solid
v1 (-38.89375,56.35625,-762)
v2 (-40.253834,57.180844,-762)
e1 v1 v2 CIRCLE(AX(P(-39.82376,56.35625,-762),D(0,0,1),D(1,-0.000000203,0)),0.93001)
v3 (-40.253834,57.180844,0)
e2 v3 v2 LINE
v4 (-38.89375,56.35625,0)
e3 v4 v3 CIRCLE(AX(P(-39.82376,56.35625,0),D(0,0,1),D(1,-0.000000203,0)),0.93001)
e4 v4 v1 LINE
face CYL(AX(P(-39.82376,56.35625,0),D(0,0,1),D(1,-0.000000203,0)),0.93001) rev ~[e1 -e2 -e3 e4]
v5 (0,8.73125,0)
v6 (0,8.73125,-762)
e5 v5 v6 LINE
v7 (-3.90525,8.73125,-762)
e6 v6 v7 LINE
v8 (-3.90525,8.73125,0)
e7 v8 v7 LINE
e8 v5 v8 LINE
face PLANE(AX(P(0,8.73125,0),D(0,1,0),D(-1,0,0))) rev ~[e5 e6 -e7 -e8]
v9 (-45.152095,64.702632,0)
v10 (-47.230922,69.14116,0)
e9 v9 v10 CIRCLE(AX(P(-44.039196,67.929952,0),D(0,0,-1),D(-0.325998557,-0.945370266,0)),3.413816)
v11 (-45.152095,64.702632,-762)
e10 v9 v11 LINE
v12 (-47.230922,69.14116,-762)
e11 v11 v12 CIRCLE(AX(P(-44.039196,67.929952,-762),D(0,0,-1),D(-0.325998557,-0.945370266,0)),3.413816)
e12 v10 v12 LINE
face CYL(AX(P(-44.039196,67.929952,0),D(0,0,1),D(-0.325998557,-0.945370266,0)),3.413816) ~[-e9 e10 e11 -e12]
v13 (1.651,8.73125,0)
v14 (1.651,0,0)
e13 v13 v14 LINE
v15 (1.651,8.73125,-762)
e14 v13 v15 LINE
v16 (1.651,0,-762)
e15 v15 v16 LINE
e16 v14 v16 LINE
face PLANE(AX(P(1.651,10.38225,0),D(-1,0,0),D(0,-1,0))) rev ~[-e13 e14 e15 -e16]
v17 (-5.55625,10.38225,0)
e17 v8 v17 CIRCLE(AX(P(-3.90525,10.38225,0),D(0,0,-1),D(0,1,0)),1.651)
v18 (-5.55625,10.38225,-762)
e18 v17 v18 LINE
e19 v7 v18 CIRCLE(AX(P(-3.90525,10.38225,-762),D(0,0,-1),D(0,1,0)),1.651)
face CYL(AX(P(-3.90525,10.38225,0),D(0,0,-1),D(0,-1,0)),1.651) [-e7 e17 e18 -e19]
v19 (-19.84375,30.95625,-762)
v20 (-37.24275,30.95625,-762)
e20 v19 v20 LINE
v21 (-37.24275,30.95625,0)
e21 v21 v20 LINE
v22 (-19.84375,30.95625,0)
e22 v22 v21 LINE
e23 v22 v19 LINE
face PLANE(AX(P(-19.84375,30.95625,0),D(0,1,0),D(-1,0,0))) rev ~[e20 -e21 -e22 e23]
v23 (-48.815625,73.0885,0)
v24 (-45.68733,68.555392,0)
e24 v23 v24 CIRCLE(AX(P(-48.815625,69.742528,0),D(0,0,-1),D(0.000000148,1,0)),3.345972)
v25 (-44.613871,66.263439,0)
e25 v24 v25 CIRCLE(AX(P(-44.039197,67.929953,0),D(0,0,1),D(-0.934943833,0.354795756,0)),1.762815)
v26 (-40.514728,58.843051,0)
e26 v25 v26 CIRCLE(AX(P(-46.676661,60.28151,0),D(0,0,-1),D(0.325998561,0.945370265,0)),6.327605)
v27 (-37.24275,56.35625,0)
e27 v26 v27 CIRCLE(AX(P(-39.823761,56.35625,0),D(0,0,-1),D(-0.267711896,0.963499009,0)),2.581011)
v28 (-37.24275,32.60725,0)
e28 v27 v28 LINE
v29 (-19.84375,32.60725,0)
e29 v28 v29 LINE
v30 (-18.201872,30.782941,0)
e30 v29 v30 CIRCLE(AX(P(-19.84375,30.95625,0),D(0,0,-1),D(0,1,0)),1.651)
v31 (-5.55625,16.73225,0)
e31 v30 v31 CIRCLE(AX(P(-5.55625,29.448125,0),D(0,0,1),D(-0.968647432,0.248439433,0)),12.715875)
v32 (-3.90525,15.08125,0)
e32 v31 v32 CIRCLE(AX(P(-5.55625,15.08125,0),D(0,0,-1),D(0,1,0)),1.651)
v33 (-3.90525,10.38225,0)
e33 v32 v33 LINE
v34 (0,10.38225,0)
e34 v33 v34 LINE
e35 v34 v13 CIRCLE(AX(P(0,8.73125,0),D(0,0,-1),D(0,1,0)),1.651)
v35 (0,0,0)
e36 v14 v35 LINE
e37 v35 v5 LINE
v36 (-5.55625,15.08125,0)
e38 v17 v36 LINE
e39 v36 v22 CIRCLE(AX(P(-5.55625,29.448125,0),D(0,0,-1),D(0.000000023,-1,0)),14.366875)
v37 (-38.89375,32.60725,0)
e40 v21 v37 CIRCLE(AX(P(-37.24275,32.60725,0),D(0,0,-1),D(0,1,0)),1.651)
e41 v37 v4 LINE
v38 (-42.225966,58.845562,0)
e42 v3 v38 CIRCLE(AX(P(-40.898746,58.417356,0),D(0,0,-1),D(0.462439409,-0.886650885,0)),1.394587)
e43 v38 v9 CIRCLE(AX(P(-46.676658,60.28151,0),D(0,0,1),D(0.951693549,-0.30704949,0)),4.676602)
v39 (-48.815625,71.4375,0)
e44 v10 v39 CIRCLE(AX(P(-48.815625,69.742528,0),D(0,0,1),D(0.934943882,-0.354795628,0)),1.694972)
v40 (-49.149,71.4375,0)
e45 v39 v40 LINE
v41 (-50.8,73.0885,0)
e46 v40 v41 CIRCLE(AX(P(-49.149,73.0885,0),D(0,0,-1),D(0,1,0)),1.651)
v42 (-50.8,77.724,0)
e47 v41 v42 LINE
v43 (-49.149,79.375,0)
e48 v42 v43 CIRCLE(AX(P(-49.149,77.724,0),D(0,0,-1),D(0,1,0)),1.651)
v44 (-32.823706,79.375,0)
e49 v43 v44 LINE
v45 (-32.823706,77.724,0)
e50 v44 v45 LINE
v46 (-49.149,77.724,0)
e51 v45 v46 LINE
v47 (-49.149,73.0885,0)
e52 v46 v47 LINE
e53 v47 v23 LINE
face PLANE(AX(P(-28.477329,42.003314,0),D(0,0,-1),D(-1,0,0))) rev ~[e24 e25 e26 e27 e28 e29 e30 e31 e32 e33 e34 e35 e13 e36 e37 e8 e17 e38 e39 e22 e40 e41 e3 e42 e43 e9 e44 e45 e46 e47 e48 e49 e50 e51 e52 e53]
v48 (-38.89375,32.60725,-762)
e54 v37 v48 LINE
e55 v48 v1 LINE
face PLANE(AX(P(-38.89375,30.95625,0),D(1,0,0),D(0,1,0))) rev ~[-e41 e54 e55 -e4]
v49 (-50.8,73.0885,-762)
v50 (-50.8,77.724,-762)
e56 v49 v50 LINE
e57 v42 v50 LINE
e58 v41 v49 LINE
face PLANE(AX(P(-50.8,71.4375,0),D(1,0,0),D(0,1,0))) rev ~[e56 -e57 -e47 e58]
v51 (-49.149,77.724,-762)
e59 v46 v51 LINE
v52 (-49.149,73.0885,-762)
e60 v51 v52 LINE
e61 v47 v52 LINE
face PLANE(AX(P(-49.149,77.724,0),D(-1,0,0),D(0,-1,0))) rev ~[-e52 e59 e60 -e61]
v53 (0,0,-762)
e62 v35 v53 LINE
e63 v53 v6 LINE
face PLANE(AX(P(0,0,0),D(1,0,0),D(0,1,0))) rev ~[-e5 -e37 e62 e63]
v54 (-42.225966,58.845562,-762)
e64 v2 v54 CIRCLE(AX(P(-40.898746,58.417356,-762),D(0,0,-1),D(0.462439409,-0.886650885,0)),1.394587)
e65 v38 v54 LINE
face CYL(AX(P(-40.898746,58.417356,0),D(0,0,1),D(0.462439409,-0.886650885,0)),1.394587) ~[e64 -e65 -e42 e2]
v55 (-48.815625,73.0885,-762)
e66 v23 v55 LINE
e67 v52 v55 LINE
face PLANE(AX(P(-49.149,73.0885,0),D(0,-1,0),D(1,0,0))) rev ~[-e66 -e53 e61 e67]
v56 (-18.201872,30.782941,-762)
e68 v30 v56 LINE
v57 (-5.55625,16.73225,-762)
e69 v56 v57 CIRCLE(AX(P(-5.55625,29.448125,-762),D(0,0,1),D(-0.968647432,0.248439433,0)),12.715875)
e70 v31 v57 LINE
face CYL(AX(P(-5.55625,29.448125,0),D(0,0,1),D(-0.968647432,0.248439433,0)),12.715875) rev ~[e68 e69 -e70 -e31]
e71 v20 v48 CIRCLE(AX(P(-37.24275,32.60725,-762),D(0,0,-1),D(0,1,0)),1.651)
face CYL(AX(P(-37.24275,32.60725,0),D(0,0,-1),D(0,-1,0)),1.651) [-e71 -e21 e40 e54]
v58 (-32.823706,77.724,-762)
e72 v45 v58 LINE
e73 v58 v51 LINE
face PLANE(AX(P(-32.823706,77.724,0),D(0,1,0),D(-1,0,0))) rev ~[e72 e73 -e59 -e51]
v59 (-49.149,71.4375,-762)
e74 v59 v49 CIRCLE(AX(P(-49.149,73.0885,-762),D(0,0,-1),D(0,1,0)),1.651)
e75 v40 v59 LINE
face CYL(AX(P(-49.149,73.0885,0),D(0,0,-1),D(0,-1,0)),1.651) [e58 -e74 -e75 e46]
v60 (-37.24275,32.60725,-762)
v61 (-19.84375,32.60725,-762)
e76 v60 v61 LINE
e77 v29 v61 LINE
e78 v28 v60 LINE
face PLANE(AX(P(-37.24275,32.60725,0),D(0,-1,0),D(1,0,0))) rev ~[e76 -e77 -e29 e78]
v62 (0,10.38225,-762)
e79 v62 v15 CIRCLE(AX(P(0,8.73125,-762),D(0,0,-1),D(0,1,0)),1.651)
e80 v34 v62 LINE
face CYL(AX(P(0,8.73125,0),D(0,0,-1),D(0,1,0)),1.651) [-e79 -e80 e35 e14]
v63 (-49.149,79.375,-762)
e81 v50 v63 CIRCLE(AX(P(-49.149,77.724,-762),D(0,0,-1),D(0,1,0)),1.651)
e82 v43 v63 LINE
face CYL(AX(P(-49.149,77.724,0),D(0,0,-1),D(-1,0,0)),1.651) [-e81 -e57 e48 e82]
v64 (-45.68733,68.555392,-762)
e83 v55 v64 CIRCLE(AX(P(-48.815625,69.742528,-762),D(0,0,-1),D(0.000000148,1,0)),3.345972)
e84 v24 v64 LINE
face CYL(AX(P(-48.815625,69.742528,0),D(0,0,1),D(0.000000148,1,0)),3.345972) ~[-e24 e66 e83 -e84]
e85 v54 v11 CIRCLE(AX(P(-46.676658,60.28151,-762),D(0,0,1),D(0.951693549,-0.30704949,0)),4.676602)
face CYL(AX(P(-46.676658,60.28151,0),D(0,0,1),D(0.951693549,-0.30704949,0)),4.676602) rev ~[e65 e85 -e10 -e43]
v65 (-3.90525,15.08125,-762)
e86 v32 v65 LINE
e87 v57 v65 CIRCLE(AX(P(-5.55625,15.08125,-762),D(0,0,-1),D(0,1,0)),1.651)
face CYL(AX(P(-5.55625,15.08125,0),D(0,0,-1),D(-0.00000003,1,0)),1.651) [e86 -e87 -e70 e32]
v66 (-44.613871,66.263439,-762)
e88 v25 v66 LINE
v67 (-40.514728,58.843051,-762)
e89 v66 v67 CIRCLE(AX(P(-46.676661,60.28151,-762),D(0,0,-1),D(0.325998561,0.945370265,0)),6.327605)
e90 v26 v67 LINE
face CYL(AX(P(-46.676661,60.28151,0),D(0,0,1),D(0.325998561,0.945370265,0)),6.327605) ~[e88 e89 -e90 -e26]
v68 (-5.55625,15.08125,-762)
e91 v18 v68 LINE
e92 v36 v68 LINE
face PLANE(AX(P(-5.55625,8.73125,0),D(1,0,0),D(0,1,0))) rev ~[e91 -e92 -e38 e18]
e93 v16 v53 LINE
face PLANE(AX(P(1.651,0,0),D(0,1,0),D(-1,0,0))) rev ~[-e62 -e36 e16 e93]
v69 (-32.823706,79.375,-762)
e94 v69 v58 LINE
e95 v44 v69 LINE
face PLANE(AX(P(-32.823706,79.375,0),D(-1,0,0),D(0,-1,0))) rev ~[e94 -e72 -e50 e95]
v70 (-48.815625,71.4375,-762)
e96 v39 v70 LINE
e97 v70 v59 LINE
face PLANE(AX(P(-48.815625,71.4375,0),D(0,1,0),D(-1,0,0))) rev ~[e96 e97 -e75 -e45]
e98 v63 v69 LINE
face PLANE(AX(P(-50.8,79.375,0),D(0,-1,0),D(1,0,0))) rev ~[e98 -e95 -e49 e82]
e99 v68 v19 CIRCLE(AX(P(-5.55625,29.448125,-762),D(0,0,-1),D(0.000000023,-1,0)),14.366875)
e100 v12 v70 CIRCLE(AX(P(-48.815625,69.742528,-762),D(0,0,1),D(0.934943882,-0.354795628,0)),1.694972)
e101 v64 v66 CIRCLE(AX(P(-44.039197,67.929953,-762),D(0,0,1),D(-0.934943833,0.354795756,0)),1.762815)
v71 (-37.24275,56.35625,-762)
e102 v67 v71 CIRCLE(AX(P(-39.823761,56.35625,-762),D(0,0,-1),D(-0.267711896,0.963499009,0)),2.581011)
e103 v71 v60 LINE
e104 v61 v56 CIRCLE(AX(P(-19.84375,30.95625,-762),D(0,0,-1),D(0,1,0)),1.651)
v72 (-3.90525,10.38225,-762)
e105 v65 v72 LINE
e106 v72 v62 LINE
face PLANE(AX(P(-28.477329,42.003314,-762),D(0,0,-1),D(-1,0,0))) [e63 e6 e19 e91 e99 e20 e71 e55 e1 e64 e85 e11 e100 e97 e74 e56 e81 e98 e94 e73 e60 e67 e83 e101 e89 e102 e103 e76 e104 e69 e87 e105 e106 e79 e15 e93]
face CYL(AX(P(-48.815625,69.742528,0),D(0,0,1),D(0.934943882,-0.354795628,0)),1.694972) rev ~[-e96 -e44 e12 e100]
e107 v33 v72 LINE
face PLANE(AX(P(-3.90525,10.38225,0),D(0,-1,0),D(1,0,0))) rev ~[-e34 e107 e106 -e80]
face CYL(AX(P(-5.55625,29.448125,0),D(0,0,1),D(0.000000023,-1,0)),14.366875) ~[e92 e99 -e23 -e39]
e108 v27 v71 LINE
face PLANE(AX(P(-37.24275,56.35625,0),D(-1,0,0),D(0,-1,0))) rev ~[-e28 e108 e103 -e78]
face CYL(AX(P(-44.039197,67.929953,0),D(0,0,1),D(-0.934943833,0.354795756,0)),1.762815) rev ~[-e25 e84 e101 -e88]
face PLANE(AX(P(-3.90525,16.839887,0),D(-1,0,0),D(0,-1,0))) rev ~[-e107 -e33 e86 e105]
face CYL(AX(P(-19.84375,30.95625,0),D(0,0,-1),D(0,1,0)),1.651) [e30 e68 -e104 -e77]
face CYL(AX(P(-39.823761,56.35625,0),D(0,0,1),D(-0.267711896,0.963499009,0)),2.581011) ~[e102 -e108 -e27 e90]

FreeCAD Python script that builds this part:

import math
import FreeCAD as App
import Part
import Sketcher

V = App.Vector
Q = App.Units.Quantity


def edges_at(feature, points):
    """Names of the edges that pass closest to the given points."""
    edges = feature.Shape.Edges
    near = lambda p: min(range(len(edges)), key=lambda i: edges[i].distToShape(Part.Vertex(*p))[0])
    return sorted({f"Edge{near(p) + 1}" for p in points})

doc = App.newDocument("Part")
body = doc.addObject("PartDesign::Body", "Body")

# Sketch on XY plane
sketch1 = body.newObject("Sketcher::SketchObject", "Sketch")
sketch1.AttachmentSupport = (doc.getObject("XY_Plane"), [""])
sketch1.MapMode = "FlatFace"
sketch1.addGeometry([
    Part.LineSegment(V(0, 8.73, 0), V(0, 0, 0)),  # 0
    Part.LineSegment(V(0, 0, 0), V(1.65, 0, 0)),  # 1
    Part.LineSegment(V(1.65, 0, 0), V(1.65, 10.38, 0)),  # 2
    Part.LineSegment(V(1.65, 10.38, 0), V(-3.91, 10.38, 0)),  # 3
    Part.LineSegment(V(-3.91, 10.38, 0), V(-3.91, 16.84, 0)),  # 4
    Part.ArcOfCircle(Part.Circle(V(-5.56, 29.45, 0), V(0, 0, 1), 12.72), math.radians(166), math.radians(277)),  # 5
    Part.LineSegment(V(-17.87, 32.61, 0), V(-37.24, 32.61, 0)),  # 6
    Part.LineSegment(V(-37.24, 32.61, 0), V(-37.24, 56.36, 0)),  # 7
    Part.ArcOfCircle(Part.Circle(V(-39.82, 56.36, 0), V(0, 0, 1), 2.58), math.radians(0), math.radians(106)),  # 8
    Part.ArcOfCircle(Part.Circle(V(-46.68, 60.28, 0), V(0, 0, 1), 6.33), math.radians(-13), math.radians(71)),  # 9
    Part.ArcOfCircle(Part.Circle(V(-44.04, 67.93, 0), V(0, 0, 1), 1.76), math.radians(159), math.radians(251)),  # 10
    Part.ArcOfCircle(Part.Circle(V(-48.82, 69.74, 0), V(0, 0, 1), 3.35), math.radians(-21), math.radians(90)),  # 11
    Part.LineSegment(V(-48.82, 73.09, 0), V(-49.15, 73.09, 0)),  # 12
    Part.LineSegment(V(-49.15, 73.09, 0), V(-49.15, 77.72, 0)),  # 13
    Part.LineSegment(V(-49.15, 77.72, 0), V(-32.82, 77.72, 0)),  # 14
    Part.LineSegment(V(-32.82, 77.72, 0), V(-32.82, 79.38, 0)),  # 15
    Part.LineSegment(V(-32.82, 79.38, 0), V(-50.8, 79.38, 0)),  # 16
    Part.LineSegment(V(-50.8, 79.38, 0), V(-50.8, 71.44, 0)),  # 17
    Part.LineSegment(V(-50.8, 71.44, 0), V(-48.82, 71.44, 0)),  # 18
    Part.ArcOfCircle(Part.Circle(V(-48.82, 69.74, 0), V(0, 0, 1), 1.69), math.radians(-21), math.radians(90)),  # 19
    Part.ArcOfCircle(Part.Circle(V(-44.04, 67.93, 0), V(0, 0, 1), 3.41), math.radians(159), math.radians(251)),  # 20
    Part.ArcOfCircle(Part.Circle(V(-46.68, 60.28, 0), V(0, 0, 1), 4.68), math.radians(-18), math.radians(71)),  # 21
    Part.ArcOfCircle(Part.Circle(V(-40.9, 58.42, 0), V(0, 0, 1), 1.39), math.radians(162), math.radians(298)),  # 22
    Part.ArcOfCircle(Part.Circle(V(-39.82, 56.36, 0), V(0, 0, 1), 0.93), math.radians(0), math.radians(118)),  # 23
    Part.LineSegment(V(-38.89, 56.36, 0), V(-38.89, 30.96, 0)),  # 24
    Part.LineSegment(V(-38.89, 30.96, 0), V(-19.84, 30.96, 0)),  # 25
    Part.ArcOfCircle(Part.Circle(V(-5.56, 29.45, 0), V(0, 0, 1), 14.37), math.radians(174), math.radians(270)),  # 26
    Part.LineSegment(V(-5.56, 15.08, 0), V(-5.56, 8.73, 0)),  # 27
    Part.LineSegment(V(-5.56, 8.73, 0), V(0, 8.73, 0)),  # 28
], False)
sketch1.addConstraint([
    Sketcher.Constraint("Coincident", 0, 2, 1, 1),
    Sketcher.Constraint("Coincident", 1, 2, 2, 1),
    Sketcher.Constraint("Coincident", 2, 2, 3, 1),
    Sketcher.Constraint("Coincident", 3, 2, 4, 1),
    Sketcher.Constraint("Coincident", 4, 2, 5, 2),
    Sketcher.Constraint("Coincident", 5, 1, 6, 1),
    Sketcher.Constraint("Coincident", 6, 2, 7, 1),
    Sketcher.Constraint("Tangent", 7, 2, 8, 1),
    Sketcher.Constraint("Coincident", 8, 2, 9, 1),
    Sketcher.Constraint("Tangent", 9, 2, 10, 2),
    Sketcher.Constraint("Tangent", 10, 1, 11, 1),
    Sketcher.Constraint("Tangent", 11, 2, 12, 1),
    Sketcher.Constraint("Coincident", 12, 2, 13, 1),
    Sketcher.Constraint("Coincident", 13, 2, 14, 1),
    Sketcher.Constraint("Coincident", 14, 2, 15, 1),
    Sketcher.Constraint("Coincident", 15, 2, 16, 1),
    Sketcher.Constraint("Coincident", 16, 2, 17, 1),
    Sketcher.Constraint("Coincident", 17, 2, 18, 1),
    Sketcher.Constraint("Tangent", 18, 2, 19, 2),
    Sketcher.Constraint("Tangent", 19, 1, 20, 1),
    Sketcher.Constraint("Tangent", 20, 2, 21, 2),
    Sketcher.Constraint("Tangent", 21, 1, 22, 1),
    Sketcher.Constraint("Tangent", 22, 2, 23, 2),
    Sketcher.Constraint("Tangent", 23, 1, 24, 1),
    Sketcher.Constraint("Coincident", 24, 2, 25, 1),
    Sketcher.Constraint("Coincident", 25, 2, 26, 1),
    Sketcher.Constraint("Coincident", 26, 2, 27, 1),
    Sketcher.Constraint("Coincident", 27, 2, 28, 1),
    Sketcher.Constraint("Coincident", 28, 2, 0, 1),
    Sketcher.Constraint("Vertical", 0),
    Sketcher.Constraint("Horizontal", 1),
    Sketcher.Constraint("Vertical", 2),
    Sketcher.Constraint("Horizontal", 3),
    Sketcher.Constraint("Vertical", 4),
    Sketcher.Constraint("Horizontal", 6),
    Sketcher.Constraint("Vertical", 7),
    Sketcher.Constraint("Horizontal", 12),
    Sketcher.Constraint("Vertical", 13),
    Sketcher.Constraint("Horizontal", 14),
    Sketcher.Constraint("Vertical", 15),
    Sketcher.Constraint("Horizontal", 16),
    Sketcher.Constraint("Vertical", 17),
    Sketcher.Constraint("Horizontal", 18),
    Sketcher.Constraint("Vertical", 24),
    Sketcher.Constraint("Horizontal", 25),
    Sketcher.Constraint("Vertical", 27),
    Sketcher.Constraint("Horizontal", 28),
    Sketcher.Constraint("Coincident", 0, 2, -1, 1),
    Sketcher.Constraint("Coincident", 19, 3, 11, 3),
    Sketcher.Constraint("Coincident", 20, 3, 10, 3),
    Sketcher.Constraint("Coincident", 21, 3, 9, 3),
    Sketcher.Constraint("Coincident", 23, 3, 8, 3),
    Sketcher.Constraint("Coincident", 26, 3, 5, 3),
    Sketcher.Constraint("Vertical", 5, 3, 26, 2),
    Sketcher.Constraint("Equal", 3, 28),
    Sketcher.Constraint("Equal", 1, 15),
    Sketcher.Constraint("DistanceY", 24, 2, 24, 1, Q("1 in")),
    Sketcher.Constraint("DistanceX", 16, 2, -1, 1, Q("2 in")),
    Sketcher.Constraint("DistanceX", 25, 1, 25, 2, Q("0.75 in")),
    Sketcher.Constraint("DistanceY", 27, 2, 27, 1, Q("0.25 in")),
    Sketcher.Constraint("DistanceX", 1, 1, 1, 2, Q("0.065 in")),
    Sketcher.Constraint("DistanceX", 3, 2, 3, 1, Q("0.21875 in")),
    Sketcher.Constraint("DistanceX", 18, 1, 18, 2, Q("0.078125 in")),
    Sketcher.Constraint("DistanceY", 0, 2, 0, 1, Q("0.34375 in")),
    Sketcher.Constraint("DistanceY", 7, 1, 7, 2, Q("0.935 in")),
    Sketcher.Constraint("DistanceY", 17, 2, 17, 1, Q("0.3125 in")),
    Sketcher.Constraint("DistanceY", -1, 1, 13, 2, Q("3.06 in")),
    Sketcher.Constraint("DistanceY", 2, 2, 23, 3, Q("1.81 in")),
    Sketcher.Constraint("DistanceY", 13, 1, 13, 2, Q("0.1825 in")),
    Sketcher.Constraint("DistanceY", -1, 1, 8, 3, Q("2.21875 in")),
    Sketcher.Constraint("DistanceX", 12, 2, -1, 1, Q("1.935 in")),
    Sketcher.Constraint("DistanceX", 23, 1, -1, 1, Q("1.53125 in")),
    Sketcher.Constraint("Radius", 8, 2.581011),
    Sketcher.Constraint("Radius", 11, 3.345972),
    Sketcher.Constraint("Radius", 23, 0.93001),
    Sketcher.Constraint("DistanceX", 6, 2, 6, 1, 19.3693),
    Sketcher.Constraint("Radius", 9, 6.327605),
    Sketcher.Constraint("Radius", 10, 1.762815),
    Sketcher.Constraint("Radius", 22, 1.394587),
    Sketcher.Constraint("DistanceX", 9, 3, 8, 3, 6.8529),
    Sketcher.Constraint("DistanceY", 23, 3, 20, 3, 11.573702),
    Sketcher.Constraint("DistanceX", 14, 1, 14, 2, 16.325294),
])
pad1 = body.newObject("PartDesign::Pad", "Pad")
pad1.Profile = sketch1
pad1.Length = Q("30 in")
pad1.Reversed = True
doc.recompute()

fillet = body.newObject("PartDesign::Fillet", "Fillet")
fillet.Base = (pad1, edges_at(pad1, [
    (-17.873, 32.607, -381),
    (-3.905, 16.84, -381),
    (1.651, 10.382, -381),
    (-5.556, 8.731, -381),
    (-38.894, 30.956, -381),
    (-50.8, 71.438, -381),
    (-50.8, 79.375, -381),
]))
fillet.Radius = Q("0.065 in")

doc.recompute()
